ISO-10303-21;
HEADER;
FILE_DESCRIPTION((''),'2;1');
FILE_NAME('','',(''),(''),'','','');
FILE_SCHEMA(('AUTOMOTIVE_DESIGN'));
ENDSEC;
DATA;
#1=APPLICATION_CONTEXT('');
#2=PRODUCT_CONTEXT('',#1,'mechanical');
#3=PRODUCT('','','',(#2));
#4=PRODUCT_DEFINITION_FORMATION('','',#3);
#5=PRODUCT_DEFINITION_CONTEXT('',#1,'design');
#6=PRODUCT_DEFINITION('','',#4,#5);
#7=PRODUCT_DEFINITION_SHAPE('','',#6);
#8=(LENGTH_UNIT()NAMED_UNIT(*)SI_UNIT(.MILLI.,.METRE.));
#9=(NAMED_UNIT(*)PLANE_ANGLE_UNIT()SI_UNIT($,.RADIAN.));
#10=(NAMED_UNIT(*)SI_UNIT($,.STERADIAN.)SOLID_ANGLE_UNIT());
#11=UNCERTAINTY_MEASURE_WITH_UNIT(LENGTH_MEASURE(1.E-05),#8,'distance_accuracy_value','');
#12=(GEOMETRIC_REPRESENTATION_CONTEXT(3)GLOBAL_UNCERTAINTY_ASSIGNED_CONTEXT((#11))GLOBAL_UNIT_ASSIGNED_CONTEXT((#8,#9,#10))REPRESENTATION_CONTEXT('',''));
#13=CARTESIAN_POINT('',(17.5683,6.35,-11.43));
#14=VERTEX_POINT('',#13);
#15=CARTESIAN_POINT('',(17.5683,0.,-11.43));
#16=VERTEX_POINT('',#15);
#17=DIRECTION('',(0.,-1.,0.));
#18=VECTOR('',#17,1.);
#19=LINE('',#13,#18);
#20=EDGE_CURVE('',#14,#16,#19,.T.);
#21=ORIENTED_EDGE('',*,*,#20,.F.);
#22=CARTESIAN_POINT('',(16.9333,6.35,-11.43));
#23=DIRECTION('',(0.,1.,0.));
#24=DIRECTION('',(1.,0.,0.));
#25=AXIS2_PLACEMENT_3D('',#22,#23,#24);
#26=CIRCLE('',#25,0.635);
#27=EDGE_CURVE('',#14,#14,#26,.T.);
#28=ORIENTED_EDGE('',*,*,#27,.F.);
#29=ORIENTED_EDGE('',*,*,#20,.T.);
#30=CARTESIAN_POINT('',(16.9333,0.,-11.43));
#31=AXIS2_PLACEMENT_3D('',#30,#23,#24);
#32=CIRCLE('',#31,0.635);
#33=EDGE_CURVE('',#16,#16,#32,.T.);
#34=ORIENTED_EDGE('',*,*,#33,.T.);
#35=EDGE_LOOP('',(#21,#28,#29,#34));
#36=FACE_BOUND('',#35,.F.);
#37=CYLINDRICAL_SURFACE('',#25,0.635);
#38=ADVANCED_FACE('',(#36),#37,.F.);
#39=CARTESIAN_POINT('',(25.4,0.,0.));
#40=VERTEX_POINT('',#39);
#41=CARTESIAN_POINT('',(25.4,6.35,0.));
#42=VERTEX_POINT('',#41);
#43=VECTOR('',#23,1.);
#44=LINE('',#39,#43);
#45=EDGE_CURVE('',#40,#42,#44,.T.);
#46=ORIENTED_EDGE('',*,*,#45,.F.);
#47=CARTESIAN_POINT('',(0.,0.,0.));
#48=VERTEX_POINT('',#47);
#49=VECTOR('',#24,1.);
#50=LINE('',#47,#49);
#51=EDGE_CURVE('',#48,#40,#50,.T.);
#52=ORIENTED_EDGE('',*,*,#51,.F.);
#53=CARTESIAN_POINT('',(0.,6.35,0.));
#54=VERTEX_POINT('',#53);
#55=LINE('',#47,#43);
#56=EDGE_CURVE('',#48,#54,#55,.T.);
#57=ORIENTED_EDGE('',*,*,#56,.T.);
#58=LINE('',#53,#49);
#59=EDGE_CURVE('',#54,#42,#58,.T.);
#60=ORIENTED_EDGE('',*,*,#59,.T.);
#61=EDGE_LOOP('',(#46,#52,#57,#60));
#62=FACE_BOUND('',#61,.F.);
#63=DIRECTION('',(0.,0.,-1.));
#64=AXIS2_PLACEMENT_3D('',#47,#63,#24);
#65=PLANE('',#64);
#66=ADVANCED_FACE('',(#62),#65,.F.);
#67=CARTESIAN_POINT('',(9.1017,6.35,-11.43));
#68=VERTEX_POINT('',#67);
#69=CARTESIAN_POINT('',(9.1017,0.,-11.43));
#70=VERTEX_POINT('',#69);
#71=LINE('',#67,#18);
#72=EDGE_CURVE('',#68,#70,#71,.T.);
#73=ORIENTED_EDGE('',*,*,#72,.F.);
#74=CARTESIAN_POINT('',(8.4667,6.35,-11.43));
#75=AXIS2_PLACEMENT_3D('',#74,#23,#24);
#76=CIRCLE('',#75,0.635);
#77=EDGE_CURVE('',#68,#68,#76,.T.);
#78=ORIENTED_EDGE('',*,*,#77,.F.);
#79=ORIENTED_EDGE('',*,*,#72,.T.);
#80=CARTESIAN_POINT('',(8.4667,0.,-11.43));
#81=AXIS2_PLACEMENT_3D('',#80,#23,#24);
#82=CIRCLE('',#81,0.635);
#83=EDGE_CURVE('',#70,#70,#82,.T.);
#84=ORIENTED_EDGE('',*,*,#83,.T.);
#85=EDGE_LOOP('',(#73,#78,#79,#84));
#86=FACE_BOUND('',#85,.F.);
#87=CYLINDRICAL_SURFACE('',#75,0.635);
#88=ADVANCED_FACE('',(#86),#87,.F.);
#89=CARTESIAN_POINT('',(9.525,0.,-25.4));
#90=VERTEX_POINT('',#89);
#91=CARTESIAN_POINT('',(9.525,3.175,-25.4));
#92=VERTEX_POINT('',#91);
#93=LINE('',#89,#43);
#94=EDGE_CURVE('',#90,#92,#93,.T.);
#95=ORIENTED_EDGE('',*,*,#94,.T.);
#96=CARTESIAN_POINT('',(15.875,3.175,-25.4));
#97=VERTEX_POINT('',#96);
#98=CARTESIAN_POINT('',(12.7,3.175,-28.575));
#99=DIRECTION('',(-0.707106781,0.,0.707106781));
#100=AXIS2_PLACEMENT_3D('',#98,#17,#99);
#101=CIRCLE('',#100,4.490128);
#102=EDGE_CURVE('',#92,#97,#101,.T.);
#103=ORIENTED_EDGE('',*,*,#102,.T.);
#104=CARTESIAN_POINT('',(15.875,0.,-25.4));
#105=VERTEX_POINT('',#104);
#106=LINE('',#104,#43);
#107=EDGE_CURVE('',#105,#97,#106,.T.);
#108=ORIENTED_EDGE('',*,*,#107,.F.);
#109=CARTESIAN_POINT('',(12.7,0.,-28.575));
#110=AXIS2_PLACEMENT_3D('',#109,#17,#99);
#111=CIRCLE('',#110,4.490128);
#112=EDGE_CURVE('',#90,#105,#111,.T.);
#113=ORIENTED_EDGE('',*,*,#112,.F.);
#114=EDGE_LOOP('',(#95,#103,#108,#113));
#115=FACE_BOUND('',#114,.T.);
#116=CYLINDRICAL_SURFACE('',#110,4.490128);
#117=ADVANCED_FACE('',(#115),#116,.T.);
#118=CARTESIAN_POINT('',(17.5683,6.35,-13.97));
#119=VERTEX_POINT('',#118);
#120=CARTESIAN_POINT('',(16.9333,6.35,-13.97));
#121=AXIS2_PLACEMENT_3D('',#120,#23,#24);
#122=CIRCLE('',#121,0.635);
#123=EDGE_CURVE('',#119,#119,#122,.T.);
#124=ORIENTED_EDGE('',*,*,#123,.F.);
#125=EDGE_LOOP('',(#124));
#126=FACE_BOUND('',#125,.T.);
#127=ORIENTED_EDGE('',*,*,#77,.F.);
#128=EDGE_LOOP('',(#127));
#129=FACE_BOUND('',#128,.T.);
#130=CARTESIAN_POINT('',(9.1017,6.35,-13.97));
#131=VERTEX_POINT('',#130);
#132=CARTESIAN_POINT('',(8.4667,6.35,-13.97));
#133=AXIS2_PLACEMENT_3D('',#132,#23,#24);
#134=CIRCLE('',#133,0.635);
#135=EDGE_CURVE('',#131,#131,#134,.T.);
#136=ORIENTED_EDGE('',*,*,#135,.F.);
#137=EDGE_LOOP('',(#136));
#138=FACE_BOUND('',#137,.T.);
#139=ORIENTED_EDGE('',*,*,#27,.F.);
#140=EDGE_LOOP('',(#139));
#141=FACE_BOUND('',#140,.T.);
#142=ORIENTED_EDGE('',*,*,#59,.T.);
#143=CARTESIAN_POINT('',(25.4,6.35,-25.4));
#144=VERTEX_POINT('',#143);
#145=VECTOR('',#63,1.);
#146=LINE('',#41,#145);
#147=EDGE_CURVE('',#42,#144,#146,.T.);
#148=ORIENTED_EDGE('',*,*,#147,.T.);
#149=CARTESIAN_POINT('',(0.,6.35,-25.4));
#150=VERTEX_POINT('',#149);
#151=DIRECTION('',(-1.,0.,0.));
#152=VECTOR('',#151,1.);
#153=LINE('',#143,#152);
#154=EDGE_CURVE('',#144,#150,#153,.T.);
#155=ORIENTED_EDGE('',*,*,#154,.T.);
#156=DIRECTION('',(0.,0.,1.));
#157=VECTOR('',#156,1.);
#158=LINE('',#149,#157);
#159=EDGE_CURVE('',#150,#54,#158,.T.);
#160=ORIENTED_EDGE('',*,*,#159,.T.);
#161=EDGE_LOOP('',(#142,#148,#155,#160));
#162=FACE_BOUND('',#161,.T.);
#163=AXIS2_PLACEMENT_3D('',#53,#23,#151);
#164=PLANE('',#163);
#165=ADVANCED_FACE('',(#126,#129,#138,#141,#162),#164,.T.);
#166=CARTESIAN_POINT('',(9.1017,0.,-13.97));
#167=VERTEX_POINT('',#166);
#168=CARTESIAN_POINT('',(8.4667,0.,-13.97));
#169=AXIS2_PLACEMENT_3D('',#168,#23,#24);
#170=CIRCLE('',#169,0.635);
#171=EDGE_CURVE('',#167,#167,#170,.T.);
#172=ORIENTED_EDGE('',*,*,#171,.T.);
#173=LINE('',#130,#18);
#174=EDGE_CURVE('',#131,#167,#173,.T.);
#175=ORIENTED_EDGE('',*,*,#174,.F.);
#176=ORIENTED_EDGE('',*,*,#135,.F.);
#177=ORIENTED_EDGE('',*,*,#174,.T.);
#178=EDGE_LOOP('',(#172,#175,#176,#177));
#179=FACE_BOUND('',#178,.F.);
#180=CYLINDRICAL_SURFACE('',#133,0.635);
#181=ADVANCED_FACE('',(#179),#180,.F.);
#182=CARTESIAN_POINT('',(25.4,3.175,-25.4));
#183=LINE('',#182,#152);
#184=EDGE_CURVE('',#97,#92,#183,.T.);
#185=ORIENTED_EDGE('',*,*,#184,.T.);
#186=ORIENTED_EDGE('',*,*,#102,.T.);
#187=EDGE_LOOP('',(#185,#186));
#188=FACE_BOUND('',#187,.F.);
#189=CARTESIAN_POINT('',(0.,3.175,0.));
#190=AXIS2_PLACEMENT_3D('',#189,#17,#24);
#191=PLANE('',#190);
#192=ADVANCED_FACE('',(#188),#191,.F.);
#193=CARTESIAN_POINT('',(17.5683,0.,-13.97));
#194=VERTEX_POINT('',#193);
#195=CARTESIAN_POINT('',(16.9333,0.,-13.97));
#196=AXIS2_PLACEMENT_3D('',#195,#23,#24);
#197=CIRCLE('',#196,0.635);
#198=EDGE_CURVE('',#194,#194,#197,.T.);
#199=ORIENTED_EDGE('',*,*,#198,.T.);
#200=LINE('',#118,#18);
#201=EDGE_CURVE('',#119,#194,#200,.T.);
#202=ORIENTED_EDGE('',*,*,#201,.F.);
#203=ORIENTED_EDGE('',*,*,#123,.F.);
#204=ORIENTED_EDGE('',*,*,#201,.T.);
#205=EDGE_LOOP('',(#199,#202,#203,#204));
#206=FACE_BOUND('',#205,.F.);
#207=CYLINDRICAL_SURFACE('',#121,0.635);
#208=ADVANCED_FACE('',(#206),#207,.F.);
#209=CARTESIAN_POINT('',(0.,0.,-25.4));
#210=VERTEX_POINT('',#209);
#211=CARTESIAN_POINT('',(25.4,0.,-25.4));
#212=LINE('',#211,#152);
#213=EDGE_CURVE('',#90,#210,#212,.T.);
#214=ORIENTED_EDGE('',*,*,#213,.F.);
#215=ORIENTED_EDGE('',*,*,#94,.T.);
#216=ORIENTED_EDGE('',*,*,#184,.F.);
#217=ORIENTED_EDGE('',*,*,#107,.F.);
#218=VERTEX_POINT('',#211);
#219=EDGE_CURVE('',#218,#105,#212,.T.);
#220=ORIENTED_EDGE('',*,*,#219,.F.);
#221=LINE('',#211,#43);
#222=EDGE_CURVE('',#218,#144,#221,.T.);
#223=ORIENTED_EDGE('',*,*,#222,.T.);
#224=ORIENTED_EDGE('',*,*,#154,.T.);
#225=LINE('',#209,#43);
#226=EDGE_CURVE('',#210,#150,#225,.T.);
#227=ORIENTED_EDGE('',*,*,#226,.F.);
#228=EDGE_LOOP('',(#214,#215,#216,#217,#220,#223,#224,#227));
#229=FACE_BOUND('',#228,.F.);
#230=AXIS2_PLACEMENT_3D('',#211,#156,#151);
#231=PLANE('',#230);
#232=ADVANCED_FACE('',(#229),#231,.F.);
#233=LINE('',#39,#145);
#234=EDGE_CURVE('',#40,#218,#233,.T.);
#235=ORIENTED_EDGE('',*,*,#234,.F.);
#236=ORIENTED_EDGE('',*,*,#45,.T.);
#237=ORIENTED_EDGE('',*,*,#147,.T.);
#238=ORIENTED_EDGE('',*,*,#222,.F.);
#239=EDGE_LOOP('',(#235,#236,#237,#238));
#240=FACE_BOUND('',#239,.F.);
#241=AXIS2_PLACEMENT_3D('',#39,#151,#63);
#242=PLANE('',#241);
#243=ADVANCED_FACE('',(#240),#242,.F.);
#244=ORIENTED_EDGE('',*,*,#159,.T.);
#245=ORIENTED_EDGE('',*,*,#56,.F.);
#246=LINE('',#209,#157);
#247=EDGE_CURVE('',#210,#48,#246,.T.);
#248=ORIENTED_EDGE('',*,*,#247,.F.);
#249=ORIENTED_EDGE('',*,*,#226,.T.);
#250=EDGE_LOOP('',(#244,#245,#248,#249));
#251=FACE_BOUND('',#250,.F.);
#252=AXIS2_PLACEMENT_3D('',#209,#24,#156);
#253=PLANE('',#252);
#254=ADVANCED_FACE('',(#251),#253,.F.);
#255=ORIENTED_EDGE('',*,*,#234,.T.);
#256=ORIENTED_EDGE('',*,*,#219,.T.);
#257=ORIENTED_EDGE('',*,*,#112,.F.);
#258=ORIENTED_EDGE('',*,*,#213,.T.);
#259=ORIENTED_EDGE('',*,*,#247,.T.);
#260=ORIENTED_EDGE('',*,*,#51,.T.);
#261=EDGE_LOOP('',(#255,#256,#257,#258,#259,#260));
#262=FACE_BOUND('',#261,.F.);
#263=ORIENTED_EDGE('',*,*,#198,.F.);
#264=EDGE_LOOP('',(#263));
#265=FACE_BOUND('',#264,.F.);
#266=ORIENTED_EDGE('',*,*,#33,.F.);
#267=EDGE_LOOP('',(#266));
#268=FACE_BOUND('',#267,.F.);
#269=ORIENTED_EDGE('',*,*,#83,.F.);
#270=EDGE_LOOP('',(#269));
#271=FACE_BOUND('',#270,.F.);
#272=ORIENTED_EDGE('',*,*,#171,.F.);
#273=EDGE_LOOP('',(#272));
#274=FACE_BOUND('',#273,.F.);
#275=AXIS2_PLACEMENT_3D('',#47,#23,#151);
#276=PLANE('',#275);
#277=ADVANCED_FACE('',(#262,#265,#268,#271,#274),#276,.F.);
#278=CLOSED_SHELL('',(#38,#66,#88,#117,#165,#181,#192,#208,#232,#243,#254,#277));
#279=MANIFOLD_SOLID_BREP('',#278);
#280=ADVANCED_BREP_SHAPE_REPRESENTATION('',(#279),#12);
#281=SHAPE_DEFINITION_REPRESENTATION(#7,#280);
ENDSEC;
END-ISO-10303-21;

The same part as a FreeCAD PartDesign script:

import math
import FreeCAD as App
import Part
import Sketcher
Q = App.Units.Quantity


def add_polygon(sketch, points):
    """Adds a closed chain of lines whose ends are joined by coincident constraints."""
    first, n = sketch.GeometryCount, len(points)
    for a, b in zip(points, points[1:] + points[:1]):
        sketch.addGeometry(Part.LineSegment(App.Vector(*a, 0), App.Vector(*b, 0)), False)
    for i in range(n):
        sketch.addConstraint(Sketcher.Constraint("Coincident", first + i, 2, first + (i + 1) % n, 1))

doc = App.newDocument("Part")
body = doc.addObject("PartDesign::Body", "Body")

# Sketch on XZ plane
sketch1 = body.newObject("Sketcher::SketchObject", "Sketch")
sketch1.AttachmentSupport = (doc.getObject("XZ_Plane"), [""])
sketch1.MapMode = "FlatFace"
add_polygon(sketch1, [(0, -25), (0, 0), (25, 0), (25, -25)])  # lines 0-3
sketch1.addConstraint([
    Sketcher.Constraint("Vertical", 0),
    Sketcher.Constraint("Horizontal", 1),
    Sketcher.Constraint("Vertical", 2),
    Sketcher.Constraint("Horizontal", 3),
    Sketcher.Constraint("Coincident", 0, 2, -1, 1),
    Sketcher.Constraint("Equal", 3, 0),
    Sketcher.Constraint("DistanceX", 1, 1, 1, 2, Q("1 in")),
])
pad1 = body.newObject("PartDesign::Pad", "Pad")
pad1.Profile = sketch1
pad1.Length = Q("0.25 in")
pad1.Reversed = True

# Sketch on XZ plane
sketch2 = body.newObject("Sketcher::SketchObject", "Sketch001")
sketch2.AttachmentSupport = (doc.getObject("XZ_Plane"), [""])
sketch2.MapMode = "FlatFace"
sketch2.AttachmentOffset = App.Placement(App.Vector(0, 0, -0.25 * 25.4), App.Rotation())
sketch2.addGeometry([
    Part.Circle(App.Vector(8.5, -14, 0), App.Vector(0, 0, 1), 0.6),
    Part.Circle(App.Vector(16.9, -14, 0), App.Vector(0, 0, 1), 0.6),
    Part.Circle(App.Vector(16.9, -11.4, 0), App.Vector(0, 0, 1), 0.6),
    Part.Circle(App.Vector(8.5, -11.4, 0), App.Vector(0, 0, 1), 0.6),
], False)
sketch2.addConstraint([
    Sketcher.Constraint("Equal", 0, 1),
    Sketcher.Constraint("Equal", 1, 2),
    Sketcher.Constraint("Equal", 2, 3),
    Sketcher.Constraint("Horizontal", 0, 3, 1, 3),
    Sketcher.Constraint("Horizontal", 2, 3, 3, 3),
    Sketcher.Constraint("Vertical", 1, 3, 2, 3),
    Sketcher.Constraint("Vertical", 0, 3, 3, 3),
    Sketcher.Constraint("Diameter", 0, Q("0.05 in")),
    Sketcher.Constraint("DistanceY", 1, 3, 2, 3, Q("0.1 in")),
    Sketcher.Constraint("DistanceY", 2, 3, -1, 1, Q("0.45 in")),
    Sketcher.Constraint("DistanceX", -1, 1, 0, 3, Q("8.4667 mm")),
    Sketcher.Constraint("DistanceX", 0, 3, 1, 3, Q("8.4666 mm")),
])
pocket1 = body.newObject("PartDesign::Pocket", "Pocket")
pocket1.Profile = sketch2
pocket1.Length = Q("0.25 in")
pocket1.Reversed = True

# Sketch on XZ plane
sketch3 = body.newObject("Sketcher::SketchObject", "Sketch002")
sketch3.AttachmentSupport = (doc.getObject("XZ_Plane"), [""])
sketch3.MapMode = "FlatFace"
sketch3.addGeometry([
    Part.ArcOfCircle(Part.Circle(App.Vector(12.7, -28.6, 0), App.Vector(0, 0, 1), 4.5), math.radians(135), math.radians(405)),
    Part.LineSegment(App.Vector(15.9, -25.4, 0), App.Vector(9.5, -25.4, 0)),
], False)
sketch3.addConstraint([
    Sketcher.Constraint("Coincident", 0, 1, 1, 2),
    Sketcher.Constraint("Coincident", 1, 1, 0, 2),
    Sketcher.Constraint("Horizontal", 1),
    Sketcher.Constraint("DistanceX", 1, 2, 1, 1, Q("0.25 in")),
    Sketcher.Constraint("DistanceX", -1, 1, 0, 1, Q("0.375 in")),
    Sketcher.Constraint("DistanceY", 0, 1, -1, 1, Q("1 in")),
    Sketcher.Constraint("Radius", 0, Q("4.4901 mm")),
])
pad2 = body.newObject("PartDesign::Pad", "Pad001")
pad2.Profile = sketch3
pad2.Length = Q("0.125 in")
pad2.Reversed = True

doc.recompute()
